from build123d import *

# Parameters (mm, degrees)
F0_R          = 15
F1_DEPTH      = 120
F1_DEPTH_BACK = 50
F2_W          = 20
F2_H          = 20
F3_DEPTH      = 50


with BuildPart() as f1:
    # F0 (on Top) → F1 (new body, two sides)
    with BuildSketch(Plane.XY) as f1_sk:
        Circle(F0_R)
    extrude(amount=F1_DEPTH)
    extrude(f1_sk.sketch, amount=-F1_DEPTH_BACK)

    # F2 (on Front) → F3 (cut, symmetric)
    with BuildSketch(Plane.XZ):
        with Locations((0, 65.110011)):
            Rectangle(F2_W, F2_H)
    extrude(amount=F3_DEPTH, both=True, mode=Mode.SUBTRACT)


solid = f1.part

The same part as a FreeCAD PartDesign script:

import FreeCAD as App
import Part
import Sketcher
from FreeCAD import Vector
Q = App.Units.Quantity

doc = App.newDocument("Part")
body = doc.addObject("PartDesign::Body", "Body")

# Sketch on XY plane
sketch1 = body.newObject("Sketcher::SketchObject", "Sketch")
sketch1.AttachmentSupport = (doc.getObject("XY_Plane"), [""])
sketch1.MapMode = "FlatFace"
sketch1.addGeometry(Part.Circle(Vector(0, 0, 0), Vector(0, 0, 1), 15), False)
sketch1.addConstraint([
    Sketcher.Constraint("Coincident", 0, 3, -1, 1),
    Sketcher.Constraint("Diameter", 0, Q("30 mm")),
])
pad1 = body.newObject("PartDesign::Pad", "Pad")
pad1.Profile = sketch1
pad1.Type = "TwoLengths"
pad1.Length = 120
pad1.Length2 = 50

# Sketch on XZ plane
sketch2 = body.newObject("Sketcher::SketchObject", "Sketch001")
sketch2.AttachmentSupport = (doc.getObject("XZ_Plane"), [""])
sketch2.MapMode = "FlatFace"
sketch2.addGeometry([
    Part.LineSegment(Vector(-10, 75, 0), Vector(-10, 55, 0)),
    Part.LineSegment(Vector(-10, 55, 0), Vector(10, 55, 0)),
    Part.LineSegment(Vector(10, 55, 0), Vector(10, 75, 0)),
    Part.LineSegment(Vector(10, 75, 0), Vector(-10, 75, 0)),
], False)
sketch2.addConstraint([
    Sketcher.Constraint("Coincident", 0, 2, 1, 1),
    Sketcher.Constraint("Coincident", 1, 2, 2, 1),
    Sketcher.Constraint("Coincident", 2, 2, 3, 1),
    Sketcher.Constraint("Coincident", 3, 2, 0, 1),
    Sketcher.Constraint("Vertical", 0),
    Sketcher.Constraint("Horizontal", 1),
    Sketcher.Constraint("Vertical", 2),
    Sketcher.Constraint("Horizontal", 3),
    Sketcher.Constraint("Equal", 3, 0),
    Sketcher.Constraint("DistanceX", 1, 1, 1, 2, Q("20 mm")),
    Sketcher.Constraint("DistanceX", 0, 2, -1, 1, Q("10 mm")),
    Sketcher.Constraint("DistanceY", -1, 1, 0, 2, Q("55.110011 mm")),
])
pocket1 = body.newObject("PartDesign::Pocket", "Pocket")
pocket1.Profile = sketch2
pocket1.Length = 100
pocket1.Midplane = True

doc.recompute()
